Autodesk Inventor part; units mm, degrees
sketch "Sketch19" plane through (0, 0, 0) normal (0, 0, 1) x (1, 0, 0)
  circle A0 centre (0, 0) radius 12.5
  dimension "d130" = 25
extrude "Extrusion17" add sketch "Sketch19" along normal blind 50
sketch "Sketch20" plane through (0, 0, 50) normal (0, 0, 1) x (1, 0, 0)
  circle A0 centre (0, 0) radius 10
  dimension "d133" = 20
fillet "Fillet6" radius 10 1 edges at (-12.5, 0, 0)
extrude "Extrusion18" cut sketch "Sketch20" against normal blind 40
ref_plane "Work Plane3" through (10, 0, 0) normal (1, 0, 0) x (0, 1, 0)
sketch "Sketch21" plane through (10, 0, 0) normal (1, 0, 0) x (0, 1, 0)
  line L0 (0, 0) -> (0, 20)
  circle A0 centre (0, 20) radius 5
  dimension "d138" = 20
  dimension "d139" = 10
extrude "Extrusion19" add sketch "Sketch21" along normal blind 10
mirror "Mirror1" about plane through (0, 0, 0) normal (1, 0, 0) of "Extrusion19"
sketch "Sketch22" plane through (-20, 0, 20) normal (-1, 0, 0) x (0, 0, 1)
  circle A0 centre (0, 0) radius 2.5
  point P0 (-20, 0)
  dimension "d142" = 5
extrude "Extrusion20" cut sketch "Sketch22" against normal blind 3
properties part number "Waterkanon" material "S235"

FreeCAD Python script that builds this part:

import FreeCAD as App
import Part
import Sketcher
from FreeCAD import Vector
Q = App.Units.Quantity


def edges_at(feature, points):
    """Names of the edges that pass closest to the given points."""
    edges = feature.Shape.Edges
    near = lambda p: min(range(len(edges)), key=lambda i: edges[i].distToShape(Part.Vertex(*p))[0])
    return sorted({f"Edge{near(p) + 1}" for p in points})

doc = App.newDocument("Part")
body = doc.addObject("PartDesign::Body", "Body")

sketch1 = body.newObject("Sketcher::SketchObject", "Sketch")
sketch1.AttachmentSupport = (doc.getObject("XY_Plane"), [""])
sketch1.MapMode = "FlatFace"
sketch1.addGeometry(Part.Circle(Vector(0, 0, 0), Vector(0, 0, 1), 12.5), False)
sketch1.addConstraint([
    Sketcher.Constraint("Coincident", 0, 3, -1, 1),
    Sketcher.Constraint("Diameter", 0, Q("25 mm")),
])
pad1 = body.newObject("PartDesign::Pad", "Pad")
pad1.Profile = sketch1
pad1.Length = 50
doc.recompute()

fillet = body.newObject("PartDesign::Fillet", "Fillet")
fillet.Base = (pad1, edges_at(pad1, [(-12.5, 0, 0)]))
fillet.Radius = 10

sketch2 = body.newObject("Sketcher::SketchObject", "Sketch001")
sketch2.AttachmentSupport = (doc.getObject("XY_Plane"), [""])
sketch2.MapMode = "FlatFace"
sketch2.AttachmentOffset = App.Placement(Vector(0, 0, 50), App.Rotation())
sketch2.addGeometry(Part.Circle(Vector(0, 0, 0), Vector(0, 0, 1), 10), False)
sketch2.addConstraint([
    Sketcher.Constraint("Coincident", 0, 3, -1, 1),
    Sketcher.Constraint("Diameter", 0, Q("20 mm")),
])
pocket1 = body.newObject("PartDesign::Pocket", "Pocket")
pocket1.Profile = sketch2
pocket1.Length = 40

sketch3 = body.newObject("Sketcher::SketchObject", "Sketch002")
sketch3.AttachmentSupport = (doc.getObject("YZ_Plane"), [""])
sketch3.MapMode = "FlatFace"
sketch3.AttachmentOffset = App.Placement(Vector(0, 0, 10), App.Rotation())
sketch3.addGeometry(Part.Circle(Vector(0, 20, 0), Vector(0, 0, 1), 5), False)
sketch3.addConstraint([
    Sketcher.Constraint("PointOnObject", 0, 3, -2),
    Sketcher.Constraint("Diameter", 0, Q("10 mm")),
    Sketcher.Constraint("DistanceY", -1, 1, 0, 3, Q("20 mm")),
])
pad2 = body.newObject("PartDesign::Pad", "Pad001")
pad2.Profile = sketch3
pad2.Length = 10
doc.recompute()

mirrored = body.newObject("PartDesign::Mirrored", "Mirrored")
mirrored.Originals = [pad2]
mirrored.MirrorPlane = (doc.getObject("YZ_Plane"), [""])
body.Tip = mirrored

sketch4 = body.newObject("Sketcher::SketchObject", "Sketch003")
sketch4.AttachmentSupport = (doc.getObject("YZ_Plane"), [""])
sketch4.MapMode = "FlatFace"
sketch4.AttachmentOffset = App.Placement(Vector(0, 0, -20), App.Rotation())
sketch4.addGeometry(Part.Circle(Vector(0, 20, 0), Vector(0, 0, 1), 2.5), False)
sketch4.addConstraint([
    Sketcher.Constraint("PointOnObject", 0, 3, -2),
    Sketcher.Constraint("Diameter", 0, Q("5 mm")),
    Sketcher.Constraint("DistanceY", -1, 1, 0, 3, Q("20 mm")),
])
pocket2 = body.newObject("PartDesign::Pocket", "Pocket001")
pocket2.Profile = sketch4
pocket2.Length = 3
pocket2.Reversed = True

doc.recompute()
